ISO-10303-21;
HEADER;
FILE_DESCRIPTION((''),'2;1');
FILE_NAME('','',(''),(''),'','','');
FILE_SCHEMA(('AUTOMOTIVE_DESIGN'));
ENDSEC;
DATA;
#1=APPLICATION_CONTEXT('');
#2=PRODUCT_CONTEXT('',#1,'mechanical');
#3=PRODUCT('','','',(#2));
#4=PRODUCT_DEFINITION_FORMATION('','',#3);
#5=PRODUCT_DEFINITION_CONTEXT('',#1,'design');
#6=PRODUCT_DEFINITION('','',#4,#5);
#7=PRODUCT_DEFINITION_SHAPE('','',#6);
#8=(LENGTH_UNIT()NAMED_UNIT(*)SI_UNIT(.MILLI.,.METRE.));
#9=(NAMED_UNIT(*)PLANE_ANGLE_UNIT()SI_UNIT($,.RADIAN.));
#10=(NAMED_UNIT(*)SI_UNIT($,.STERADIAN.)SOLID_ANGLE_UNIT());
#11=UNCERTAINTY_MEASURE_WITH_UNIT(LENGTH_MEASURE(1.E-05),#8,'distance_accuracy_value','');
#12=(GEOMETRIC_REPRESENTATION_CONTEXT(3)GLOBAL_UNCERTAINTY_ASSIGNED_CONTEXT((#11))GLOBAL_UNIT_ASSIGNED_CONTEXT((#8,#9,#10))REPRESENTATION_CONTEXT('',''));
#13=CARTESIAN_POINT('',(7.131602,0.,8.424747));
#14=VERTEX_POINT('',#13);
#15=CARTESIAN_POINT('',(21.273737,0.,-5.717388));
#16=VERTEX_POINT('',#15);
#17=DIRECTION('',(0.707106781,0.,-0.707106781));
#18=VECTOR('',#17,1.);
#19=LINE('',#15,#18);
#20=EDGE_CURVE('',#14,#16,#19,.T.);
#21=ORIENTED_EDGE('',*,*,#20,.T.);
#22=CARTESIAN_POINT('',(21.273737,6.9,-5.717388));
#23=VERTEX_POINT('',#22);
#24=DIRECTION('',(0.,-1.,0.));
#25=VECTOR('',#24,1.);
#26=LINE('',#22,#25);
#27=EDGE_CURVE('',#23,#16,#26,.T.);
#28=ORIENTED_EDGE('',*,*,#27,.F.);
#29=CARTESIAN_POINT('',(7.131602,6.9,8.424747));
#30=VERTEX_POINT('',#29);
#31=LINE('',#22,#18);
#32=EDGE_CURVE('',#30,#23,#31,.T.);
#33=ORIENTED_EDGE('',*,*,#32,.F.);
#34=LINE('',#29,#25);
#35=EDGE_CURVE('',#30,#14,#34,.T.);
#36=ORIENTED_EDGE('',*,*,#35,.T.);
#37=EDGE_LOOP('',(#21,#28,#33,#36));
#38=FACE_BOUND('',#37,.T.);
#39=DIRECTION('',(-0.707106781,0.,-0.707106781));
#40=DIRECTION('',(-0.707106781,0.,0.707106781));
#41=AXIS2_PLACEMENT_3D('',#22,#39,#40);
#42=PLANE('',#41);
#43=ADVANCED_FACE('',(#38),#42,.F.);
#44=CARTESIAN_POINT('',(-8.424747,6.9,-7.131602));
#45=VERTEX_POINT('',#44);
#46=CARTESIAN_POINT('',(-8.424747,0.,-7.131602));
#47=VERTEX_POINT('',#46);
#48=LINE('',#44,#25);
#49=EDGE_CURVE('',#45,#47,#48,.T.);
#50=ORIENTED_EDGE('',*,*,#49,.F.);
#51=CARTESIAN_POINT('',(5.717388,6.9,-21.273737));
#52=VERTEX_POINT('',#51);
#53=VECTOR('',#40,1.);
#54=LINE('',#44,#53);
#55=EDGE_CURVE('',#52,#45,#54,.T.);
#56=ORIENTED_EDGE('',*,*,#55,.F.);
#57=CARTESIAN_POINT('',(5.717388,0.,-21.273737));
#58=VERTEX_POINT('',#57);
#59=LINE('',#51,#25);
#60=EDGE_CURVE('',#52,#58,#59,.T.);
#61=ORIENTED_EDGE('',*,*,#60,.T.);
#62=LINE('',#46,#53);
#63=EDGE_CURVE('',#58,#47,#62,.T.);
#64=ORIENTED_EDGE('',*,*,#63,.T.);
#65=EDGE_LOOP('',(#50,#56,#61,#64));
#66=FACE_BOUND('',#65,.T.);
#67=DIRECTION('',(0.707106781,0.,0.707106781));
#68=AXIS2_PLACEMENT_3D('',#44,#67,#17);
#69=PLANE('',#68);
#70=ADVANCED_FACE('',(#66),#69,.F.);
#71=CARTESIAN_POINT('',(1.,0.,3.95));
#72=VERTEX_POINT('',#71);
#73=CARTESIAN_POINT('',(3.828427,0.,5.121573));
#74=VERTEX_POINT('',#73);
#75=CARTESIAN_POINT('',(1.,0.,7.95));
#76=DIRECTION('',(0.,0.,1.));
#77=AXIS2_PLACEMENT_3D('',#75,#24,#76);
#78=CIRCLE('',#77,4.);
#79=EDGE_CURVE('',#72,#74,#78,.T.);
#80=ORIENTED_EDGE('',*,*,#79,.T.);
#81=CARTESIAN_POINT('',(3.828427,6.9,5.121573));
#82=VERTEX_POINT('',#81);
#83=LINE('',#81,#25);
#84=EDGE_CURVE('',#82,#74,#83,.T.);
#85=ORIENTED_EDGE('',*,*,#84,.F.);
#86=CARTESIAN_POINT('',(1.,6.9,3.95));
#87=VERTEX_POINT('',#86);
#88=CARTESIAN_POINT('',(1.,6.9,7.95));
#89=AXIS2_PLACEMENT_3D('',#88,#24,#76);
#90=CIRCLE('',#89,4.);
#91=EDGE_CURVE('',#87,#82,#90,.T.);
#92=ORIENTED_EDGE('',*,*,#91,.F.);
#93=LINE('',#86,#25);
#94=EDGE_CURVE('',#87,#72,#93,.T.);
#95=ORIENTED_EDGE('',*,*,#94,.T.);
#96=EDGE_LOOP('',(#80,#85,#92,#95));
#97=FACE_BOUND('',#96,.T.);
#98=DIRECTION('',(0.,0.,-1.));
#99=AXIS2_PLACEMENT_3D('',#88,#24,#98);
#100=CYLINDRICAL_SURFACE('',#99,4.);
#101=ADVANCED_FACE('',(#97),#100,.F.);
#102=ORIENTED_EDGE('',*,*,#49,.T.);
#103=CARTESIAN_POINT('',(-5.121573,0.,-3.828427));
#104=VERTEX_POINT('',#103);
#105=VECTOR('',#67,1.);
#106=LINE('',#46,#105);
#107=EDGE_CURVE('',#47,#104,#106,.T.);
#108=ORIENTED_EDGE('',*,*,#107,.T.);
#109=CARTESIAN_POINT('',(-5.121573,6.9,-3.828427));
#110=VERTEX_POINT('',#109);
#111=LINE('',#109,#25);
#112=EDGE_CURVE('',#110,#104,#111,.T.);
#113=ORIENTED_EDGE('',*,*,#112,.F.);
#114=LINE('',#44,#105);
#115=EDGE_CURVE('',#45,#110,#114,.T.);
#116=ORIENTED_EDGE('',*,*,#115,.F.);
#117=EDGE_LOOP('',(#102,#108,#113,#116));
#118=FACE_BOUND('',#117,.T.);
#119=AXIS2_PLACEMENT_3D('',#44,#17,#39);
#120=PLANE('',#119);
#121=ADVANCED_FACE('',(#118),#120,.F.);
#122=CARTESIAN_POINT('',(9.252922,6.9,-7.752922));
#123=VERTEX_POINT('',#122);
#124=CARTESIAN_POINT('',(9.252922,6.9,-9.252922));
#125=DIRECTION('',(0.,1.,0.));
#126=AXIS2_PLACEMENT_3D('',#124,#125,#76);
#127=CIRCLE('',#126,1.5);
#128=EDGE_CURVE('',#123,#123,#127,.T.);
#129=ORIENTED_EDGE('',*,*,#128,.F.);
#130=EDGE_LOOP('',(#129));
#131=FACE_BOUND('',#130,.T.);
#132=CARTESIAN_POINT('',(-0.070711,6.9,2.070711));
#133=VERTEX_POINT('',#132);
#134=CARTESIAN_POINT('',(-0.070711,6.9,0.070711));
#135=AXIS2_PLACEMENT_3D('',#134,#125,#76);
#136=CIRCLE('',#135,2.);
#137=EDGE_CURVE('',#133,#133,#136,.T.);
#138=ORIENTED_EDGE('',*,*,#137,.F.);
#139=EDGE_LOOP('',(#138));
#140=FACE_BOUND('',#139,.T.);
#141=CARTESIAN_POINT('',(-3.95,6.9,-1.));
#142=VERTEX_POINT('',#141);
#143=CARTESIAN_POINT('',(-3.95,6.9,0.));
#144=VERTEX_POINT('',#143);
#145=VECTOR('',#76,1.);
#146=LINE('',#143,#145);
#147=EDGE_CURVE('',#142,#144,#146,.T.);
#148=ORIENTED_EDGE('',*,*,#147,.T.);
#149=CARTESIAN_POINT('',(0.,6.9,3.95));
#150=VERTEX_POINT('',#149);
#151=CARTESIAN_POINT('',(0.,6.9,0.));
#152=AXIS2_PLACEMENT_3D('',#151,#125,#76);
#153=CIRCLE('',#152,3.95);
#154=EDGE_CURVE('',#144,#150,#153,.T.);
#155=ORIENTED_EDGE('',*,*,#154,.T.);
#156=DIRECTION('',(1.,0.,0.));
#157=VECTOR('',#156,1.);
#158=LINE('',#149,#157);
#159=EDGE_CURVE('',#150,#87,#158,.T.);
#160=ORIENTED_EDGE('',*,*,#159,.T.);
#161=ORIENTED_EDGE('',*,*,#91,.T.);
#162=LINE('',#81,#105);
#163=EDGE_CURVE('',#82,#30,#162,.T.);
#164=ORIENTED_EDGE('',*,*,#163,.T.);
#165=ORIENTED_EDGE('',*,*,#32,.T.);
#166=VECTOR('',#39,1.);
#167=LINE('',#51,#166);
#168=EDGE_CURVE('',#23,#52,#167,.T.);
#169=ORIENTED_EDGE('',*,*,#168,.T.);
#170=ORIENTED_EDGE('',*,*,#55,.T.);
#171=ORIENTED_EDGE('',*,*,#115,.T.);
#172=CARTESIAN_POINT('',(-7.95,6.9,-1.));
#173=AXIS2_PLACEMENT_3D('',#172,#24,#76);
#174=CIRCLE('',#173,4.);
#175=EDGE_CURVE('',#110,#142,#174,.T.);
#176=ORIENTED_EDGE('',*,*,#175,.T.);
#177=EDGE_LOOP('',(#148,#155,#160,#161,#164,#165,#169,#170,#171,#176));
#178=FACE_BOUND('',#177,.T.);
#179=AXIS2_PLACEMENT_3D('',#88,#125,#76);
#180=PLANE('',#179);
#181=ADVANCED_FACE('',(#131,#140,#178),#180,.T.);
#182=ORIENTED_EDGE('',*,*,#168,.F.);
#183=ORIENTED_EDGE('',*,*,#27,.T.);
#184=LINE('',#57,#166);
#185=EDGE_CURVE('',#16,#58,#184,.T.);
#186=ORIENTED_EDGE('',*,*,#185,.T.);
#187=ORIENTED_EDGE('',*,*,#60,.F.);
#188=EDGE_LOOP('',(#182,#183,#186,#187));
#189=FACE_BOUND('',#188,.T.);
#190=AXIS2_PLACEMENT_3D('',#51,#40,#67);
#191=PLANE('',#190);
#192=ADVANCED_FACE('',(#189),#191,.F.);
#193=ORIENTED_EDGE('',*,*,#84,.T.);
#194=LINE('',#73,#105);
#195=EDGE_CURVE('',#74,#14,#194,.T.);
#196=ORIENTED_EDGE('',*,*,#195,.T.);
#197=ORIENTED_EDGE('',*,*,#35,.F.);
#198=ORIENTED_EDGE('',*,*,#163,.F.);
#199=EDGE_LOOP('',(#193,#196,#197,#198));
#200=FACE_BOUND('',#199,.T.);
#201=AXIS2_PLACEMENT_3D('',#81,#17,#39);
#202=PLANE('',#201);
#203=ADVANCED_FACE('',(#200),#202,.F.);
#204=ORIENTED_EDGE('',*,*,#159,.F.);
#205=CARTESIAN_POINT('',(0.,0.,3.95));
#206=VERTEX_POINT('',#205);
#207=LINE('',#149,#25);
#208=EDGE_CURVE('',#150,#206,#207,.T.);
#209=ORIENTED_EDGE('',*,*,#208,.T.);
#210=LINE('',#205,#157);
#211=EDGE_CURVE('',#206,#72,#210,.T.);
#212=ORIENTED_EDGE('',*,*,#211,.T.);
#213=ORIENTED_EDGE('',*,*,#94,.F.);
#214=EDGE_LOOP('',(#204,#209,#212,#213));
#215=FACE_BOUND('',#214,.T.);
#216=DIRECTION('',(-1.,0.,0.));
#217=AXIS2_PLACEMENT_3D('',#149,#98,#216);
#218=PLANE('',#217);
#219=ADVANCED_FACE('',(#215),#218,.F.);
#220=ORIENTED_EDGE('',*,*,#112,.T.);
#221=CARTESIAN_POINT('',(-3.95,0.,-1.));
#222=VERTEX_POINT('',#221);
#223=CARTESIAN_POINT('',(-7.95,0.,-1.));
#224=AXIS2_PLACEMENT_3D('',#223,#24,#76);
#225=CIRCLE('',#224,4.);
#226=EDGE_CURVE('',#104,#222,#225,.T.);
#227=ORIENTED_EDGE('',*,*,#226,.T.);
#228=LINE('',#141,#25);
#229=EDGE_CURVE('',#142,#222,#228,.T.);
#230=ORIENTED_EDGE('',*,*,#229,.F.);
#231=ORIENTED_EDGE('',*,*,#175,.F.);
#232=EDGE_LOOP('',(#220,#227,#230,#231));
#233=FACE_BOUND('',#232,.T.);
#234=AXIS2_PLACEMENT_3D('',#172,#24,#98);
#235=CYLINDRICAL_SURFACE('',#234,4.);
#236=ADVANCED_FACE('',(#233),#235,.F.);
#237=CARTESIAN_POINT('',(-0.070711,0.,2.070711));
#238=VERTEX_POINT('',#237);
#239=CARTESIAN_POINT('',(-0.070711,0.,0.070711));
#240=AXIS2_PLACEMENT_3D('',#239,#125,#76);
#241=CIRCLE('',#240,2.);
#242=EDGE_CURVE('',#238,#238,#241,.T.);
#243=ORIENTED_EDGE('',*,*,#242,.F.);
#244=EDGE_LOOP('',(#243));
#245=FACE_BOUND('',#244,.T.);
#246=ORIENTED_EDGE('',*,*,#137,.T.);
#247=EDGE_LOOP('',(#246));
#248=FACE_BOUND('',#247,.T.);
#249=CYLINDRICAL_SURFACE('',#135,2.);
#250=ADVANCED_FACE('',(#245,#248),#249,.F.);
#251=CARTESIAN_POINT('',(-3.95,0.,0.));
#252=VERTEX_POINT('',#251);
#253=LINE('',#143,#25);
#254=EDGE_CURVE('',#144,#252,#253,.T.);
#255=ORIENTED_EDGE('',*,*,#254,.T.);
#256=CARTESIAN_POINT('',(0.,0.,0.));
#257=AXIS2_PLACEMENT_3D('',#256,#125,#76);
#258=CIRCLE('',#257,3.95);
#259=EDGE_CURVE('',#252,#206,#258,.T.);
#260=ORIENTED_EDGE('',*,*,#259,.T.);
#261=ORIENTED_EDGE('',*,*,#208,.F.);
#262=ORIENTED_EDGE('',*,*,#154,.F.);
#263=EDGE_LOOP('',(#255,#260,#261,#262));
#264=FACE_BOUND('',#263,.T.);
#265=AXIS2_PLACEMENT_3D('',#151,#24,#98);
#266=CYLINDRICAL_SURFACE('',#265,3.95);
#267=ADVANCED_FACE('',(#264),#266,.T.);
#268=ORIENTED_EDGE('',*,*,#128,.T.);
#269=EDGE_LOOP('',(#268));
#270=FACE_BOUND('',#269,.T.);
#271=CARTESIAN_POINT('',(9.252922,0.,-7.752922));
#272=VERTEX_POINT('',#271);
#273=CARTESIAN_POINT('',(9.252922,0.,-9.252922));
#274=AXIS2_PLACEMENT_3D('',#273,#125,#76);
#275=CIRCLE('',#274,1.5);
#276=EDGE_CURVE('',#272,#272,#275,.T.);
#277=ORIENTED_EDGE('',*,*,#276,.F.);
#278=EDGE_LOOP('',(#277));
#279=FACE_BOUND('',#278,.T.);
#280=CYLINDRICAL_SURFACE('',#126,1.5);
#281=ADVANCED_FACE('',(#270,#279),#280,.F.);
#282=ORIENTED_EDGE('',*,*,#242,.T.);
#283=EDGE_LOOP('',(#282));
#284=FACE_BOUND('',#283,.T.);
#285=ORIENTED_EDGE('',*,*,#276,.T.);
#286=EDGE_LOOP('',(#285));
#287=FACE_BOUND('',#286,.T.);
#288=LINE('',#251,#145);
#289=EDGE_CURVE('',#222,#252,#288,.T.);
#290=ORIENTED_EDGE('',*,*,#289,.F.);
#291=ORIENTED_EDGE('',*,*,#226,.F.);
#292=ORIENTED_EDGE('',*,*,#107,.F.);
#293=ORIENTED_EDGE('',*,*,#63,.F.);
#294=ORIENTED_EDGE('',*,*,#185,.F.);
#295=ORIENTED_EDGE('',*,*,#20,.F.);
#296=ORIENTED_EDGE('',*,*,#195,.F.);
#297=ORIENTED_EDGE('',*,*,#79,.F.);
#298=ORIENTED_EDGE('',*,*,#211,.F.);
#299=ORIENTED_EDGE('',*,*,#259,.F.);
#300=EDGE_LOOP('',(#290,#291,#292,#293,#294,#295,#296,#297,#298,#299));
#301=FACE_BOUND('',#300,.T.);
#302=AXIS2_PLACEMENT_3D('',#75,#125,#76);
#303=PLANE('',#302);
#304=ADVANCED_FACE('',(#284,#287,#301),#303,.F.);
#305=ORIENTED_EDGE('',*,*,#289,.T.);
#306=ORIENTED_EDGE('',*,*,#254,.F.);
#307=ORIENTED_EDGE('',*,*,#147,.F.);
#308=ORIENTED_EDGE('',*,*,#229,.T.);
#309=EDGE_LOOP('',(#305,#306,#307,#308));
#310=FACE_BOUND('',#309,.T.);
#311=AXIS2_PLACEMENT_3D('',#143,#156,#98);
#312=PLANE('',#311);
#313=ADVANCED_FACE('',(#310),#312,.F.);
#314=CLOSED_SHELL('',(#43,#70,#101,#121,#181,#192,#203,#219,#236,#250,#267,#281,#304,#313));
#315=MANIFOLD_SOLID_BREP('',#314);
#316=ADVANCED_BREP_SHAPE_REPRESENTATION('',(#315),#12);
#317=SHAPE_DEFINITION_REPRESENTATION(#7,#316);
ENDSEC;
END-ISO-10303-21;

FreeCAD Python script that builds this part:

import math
import FreeCAD as App
import Part
import Sketcher
from FreeCAD import Vector

doc = App.newDocument("Part")
body = doc.addObject("PartDesign::Body", "Body")

sketch1 = doc.addObject("Sketcher::SketchObject", "Sketch")
body.addObject(sketch1)
sketch1.AttachmentSupport = (doc.XZ_Plane, [""])
sketch1.MapMode = "FlatFace"
sketch1.addGeometry([
    Part.LineSegment(Vector(0, 3.95, 0), Vector(1, 3.95, 0)),
    Part.ArcOfCircle(Part.Circle(Vector(1, 7.95, 0), Vector(0, 0, 1), 4), math.radians(-90), math.radians(-45)),
    Part.LineSegment(Vector(3.828427, 5.121573, 0), Vector(7.131602, 8.424747, 0)),
    Part.LineSegment(Vector(7.131602, 8.424747, 0), Vector(21.273737, -5.717388, 0)),
    Part.LineSegment(Vector(21.273737, -5.717388, 0), Vector(5.717388, -21.273737, 0)),
    Part.LineSegment(Vector(5.717388, -21.273737, 0), Vector(-8.424747, -7.131602, 0)),
    Part.LineSegment(Vector(-8.424747, -7.131602, 0), Vector(-5.121573, -3.828427, 0)),
    Part.ArcOfCircle(Part.Circle(Vector(-7.95, -1, 0), Vector(0, 0, 1), 4), math.radians(-45), math.radians(0)),
    Part.LineSegment(Vector(-3.95, -1, 0), Vector(-3.95, 0, 0)),
    Part.ArcOfCircle(Part.Circle(Vector(0, 0, 0), Vector(0, 0, 1), 3.95), math.radians(90), math.radians(180)),
], False)
sketch1.addConstraint([
    Sketcher.Constraint("Tangent", 0, 2, 1, 1),
    Sketcher.Constraint("Tangent", 1, 2, 2, 1),
    Sketcher.Constraint("Coincident", 2, 2, 3, 1),
    Sketcher.Constraint("Coincident", 3, 2, 4, 1),
    Sketcher.Constraint("Coincident", 4, 2, 5, 1),
    Sketcher.Constraint("Coincident", 5, 2, 6, 1),
    Sketcher.Constraint("Tangent", 6, 2, 7, 1),
    Sketcher.Constraint("Tangent", 7, 2, 8, 1),
    Sketcher.Constraint("Tangent", 8, 2, 9, 2),
    Sketcher.Constraint("Tangent", 9, 1, 0, 1),
    Sketcher.Constraint("Horizontal", 0),
    Sketcher.Constraint("Vertical", 8),
    Sketcher.Constraint("Coincident", 9, 3, -1, 1),
    Sketcher.Constraint("Equal", 1, 7),
    Sketcher.Constraint("Perpendicular", 2, 3),
    Sketcher.Constraint("Perpendicular", 3, 4),
    Sketcher.Constraint("Perpendicular", 4, 5),
    Sketcher.Constraint("Perpendicular", 5, 6),
    Sketcher.Constraint("Equal", 0, 8),
    Sketcher.Constraint("Equal", 3, 5),
    Sketcher.Constraint("Equal", 2, 6),
    Sketcher.Constraint("Radius", 1, 4.0),
    Sketcher.Constraint("DistanceX", 0, 1, 0, 2, 1.0),
    Sketcher.Constraint("Radius", 9, 3.95),
    Sketcher.Constraint("Distance", 3, 20.0),
    Sketcher.Constraint("Distance", 4, 22.0),
])
pad1 = doc.addObject("PartDesign::Pad", "Pad")
body.addObject(pad1)
pad1.Profile = sketch1
pad1.Length = 6.9
pad1.Reversed = True

sketch2 = doc.addObject("Sketcher::SketchObject", "Sketch001")
body.addObject(sketch2)
sketch2.AttachmentSupport = (doc.XZ_Plane, [""])
sketch2.MapMode = "FlatFace"
sketch2.AttachmentOffset = App.Placement(Vector(0, 0, -6.9), App.Rotation())
sketch2.addGeometry(Part.Circle(Vector(-0.070711, 0.070711, 0), Vector(0, 0, 1), 2), False)
sketch2.addConstraint([
    Sketcher.Constraint("Diameter", 0, 4.0),
    Sketcher.Constraint("DistanceX", 0, 3, -1, 1, 0.070711),
    Sketcher.Constraint("DistanceY", -1, 1, 0, 3, 0.070711),
])
doc.recompute()
hole = doc.addObject("PartDesign::Hole", "Hole")
body.addObject(hole)
hole.Profile = sketch2
hole.ThreadType = "None"
hole.Diameter = 4
hole.DepthType = "ThroughAll"
hole.Reversed = True

sketch3 = doc.addObject("Sketcher::SketchObject", "Sketch002")
body.addObject(sketch3)
sketch3.AttachmentSupport = (doc.XZ_Plane, [""])
sketch3.MapMode = "FlatFace"
sketch3.AttachmentOffset = App.Placement(Vector(0, 0, -6.9), App.Rotation())
sketch3.addGeometry(Part.Circle(Vector(9.252922, -9.252922, 0), Vector(0, 0, 1), 1.5), False)
sketch3.addConstraint([
    Sketcher.Constraint("Diameter", 0, 3.0),
    Sketcher.Constraint("DistanceX", -1, 1, 0, 3, 9.252922),
    Sketcher.Constraint("DistanceY", 0, 3, -1, 1, 9.252922),
])
doc.recompute()
hole2 = doc.addObject("PartDesign::Hole", "Hole001")
body.addObject(hole2)
hole2.Profile = sketch3
hole2.ThreadType = "None"
hole2.Diameter = 3
hole2.DepthType = "ThroughAll"
hole2.Reversed = True

doc.recompute()
